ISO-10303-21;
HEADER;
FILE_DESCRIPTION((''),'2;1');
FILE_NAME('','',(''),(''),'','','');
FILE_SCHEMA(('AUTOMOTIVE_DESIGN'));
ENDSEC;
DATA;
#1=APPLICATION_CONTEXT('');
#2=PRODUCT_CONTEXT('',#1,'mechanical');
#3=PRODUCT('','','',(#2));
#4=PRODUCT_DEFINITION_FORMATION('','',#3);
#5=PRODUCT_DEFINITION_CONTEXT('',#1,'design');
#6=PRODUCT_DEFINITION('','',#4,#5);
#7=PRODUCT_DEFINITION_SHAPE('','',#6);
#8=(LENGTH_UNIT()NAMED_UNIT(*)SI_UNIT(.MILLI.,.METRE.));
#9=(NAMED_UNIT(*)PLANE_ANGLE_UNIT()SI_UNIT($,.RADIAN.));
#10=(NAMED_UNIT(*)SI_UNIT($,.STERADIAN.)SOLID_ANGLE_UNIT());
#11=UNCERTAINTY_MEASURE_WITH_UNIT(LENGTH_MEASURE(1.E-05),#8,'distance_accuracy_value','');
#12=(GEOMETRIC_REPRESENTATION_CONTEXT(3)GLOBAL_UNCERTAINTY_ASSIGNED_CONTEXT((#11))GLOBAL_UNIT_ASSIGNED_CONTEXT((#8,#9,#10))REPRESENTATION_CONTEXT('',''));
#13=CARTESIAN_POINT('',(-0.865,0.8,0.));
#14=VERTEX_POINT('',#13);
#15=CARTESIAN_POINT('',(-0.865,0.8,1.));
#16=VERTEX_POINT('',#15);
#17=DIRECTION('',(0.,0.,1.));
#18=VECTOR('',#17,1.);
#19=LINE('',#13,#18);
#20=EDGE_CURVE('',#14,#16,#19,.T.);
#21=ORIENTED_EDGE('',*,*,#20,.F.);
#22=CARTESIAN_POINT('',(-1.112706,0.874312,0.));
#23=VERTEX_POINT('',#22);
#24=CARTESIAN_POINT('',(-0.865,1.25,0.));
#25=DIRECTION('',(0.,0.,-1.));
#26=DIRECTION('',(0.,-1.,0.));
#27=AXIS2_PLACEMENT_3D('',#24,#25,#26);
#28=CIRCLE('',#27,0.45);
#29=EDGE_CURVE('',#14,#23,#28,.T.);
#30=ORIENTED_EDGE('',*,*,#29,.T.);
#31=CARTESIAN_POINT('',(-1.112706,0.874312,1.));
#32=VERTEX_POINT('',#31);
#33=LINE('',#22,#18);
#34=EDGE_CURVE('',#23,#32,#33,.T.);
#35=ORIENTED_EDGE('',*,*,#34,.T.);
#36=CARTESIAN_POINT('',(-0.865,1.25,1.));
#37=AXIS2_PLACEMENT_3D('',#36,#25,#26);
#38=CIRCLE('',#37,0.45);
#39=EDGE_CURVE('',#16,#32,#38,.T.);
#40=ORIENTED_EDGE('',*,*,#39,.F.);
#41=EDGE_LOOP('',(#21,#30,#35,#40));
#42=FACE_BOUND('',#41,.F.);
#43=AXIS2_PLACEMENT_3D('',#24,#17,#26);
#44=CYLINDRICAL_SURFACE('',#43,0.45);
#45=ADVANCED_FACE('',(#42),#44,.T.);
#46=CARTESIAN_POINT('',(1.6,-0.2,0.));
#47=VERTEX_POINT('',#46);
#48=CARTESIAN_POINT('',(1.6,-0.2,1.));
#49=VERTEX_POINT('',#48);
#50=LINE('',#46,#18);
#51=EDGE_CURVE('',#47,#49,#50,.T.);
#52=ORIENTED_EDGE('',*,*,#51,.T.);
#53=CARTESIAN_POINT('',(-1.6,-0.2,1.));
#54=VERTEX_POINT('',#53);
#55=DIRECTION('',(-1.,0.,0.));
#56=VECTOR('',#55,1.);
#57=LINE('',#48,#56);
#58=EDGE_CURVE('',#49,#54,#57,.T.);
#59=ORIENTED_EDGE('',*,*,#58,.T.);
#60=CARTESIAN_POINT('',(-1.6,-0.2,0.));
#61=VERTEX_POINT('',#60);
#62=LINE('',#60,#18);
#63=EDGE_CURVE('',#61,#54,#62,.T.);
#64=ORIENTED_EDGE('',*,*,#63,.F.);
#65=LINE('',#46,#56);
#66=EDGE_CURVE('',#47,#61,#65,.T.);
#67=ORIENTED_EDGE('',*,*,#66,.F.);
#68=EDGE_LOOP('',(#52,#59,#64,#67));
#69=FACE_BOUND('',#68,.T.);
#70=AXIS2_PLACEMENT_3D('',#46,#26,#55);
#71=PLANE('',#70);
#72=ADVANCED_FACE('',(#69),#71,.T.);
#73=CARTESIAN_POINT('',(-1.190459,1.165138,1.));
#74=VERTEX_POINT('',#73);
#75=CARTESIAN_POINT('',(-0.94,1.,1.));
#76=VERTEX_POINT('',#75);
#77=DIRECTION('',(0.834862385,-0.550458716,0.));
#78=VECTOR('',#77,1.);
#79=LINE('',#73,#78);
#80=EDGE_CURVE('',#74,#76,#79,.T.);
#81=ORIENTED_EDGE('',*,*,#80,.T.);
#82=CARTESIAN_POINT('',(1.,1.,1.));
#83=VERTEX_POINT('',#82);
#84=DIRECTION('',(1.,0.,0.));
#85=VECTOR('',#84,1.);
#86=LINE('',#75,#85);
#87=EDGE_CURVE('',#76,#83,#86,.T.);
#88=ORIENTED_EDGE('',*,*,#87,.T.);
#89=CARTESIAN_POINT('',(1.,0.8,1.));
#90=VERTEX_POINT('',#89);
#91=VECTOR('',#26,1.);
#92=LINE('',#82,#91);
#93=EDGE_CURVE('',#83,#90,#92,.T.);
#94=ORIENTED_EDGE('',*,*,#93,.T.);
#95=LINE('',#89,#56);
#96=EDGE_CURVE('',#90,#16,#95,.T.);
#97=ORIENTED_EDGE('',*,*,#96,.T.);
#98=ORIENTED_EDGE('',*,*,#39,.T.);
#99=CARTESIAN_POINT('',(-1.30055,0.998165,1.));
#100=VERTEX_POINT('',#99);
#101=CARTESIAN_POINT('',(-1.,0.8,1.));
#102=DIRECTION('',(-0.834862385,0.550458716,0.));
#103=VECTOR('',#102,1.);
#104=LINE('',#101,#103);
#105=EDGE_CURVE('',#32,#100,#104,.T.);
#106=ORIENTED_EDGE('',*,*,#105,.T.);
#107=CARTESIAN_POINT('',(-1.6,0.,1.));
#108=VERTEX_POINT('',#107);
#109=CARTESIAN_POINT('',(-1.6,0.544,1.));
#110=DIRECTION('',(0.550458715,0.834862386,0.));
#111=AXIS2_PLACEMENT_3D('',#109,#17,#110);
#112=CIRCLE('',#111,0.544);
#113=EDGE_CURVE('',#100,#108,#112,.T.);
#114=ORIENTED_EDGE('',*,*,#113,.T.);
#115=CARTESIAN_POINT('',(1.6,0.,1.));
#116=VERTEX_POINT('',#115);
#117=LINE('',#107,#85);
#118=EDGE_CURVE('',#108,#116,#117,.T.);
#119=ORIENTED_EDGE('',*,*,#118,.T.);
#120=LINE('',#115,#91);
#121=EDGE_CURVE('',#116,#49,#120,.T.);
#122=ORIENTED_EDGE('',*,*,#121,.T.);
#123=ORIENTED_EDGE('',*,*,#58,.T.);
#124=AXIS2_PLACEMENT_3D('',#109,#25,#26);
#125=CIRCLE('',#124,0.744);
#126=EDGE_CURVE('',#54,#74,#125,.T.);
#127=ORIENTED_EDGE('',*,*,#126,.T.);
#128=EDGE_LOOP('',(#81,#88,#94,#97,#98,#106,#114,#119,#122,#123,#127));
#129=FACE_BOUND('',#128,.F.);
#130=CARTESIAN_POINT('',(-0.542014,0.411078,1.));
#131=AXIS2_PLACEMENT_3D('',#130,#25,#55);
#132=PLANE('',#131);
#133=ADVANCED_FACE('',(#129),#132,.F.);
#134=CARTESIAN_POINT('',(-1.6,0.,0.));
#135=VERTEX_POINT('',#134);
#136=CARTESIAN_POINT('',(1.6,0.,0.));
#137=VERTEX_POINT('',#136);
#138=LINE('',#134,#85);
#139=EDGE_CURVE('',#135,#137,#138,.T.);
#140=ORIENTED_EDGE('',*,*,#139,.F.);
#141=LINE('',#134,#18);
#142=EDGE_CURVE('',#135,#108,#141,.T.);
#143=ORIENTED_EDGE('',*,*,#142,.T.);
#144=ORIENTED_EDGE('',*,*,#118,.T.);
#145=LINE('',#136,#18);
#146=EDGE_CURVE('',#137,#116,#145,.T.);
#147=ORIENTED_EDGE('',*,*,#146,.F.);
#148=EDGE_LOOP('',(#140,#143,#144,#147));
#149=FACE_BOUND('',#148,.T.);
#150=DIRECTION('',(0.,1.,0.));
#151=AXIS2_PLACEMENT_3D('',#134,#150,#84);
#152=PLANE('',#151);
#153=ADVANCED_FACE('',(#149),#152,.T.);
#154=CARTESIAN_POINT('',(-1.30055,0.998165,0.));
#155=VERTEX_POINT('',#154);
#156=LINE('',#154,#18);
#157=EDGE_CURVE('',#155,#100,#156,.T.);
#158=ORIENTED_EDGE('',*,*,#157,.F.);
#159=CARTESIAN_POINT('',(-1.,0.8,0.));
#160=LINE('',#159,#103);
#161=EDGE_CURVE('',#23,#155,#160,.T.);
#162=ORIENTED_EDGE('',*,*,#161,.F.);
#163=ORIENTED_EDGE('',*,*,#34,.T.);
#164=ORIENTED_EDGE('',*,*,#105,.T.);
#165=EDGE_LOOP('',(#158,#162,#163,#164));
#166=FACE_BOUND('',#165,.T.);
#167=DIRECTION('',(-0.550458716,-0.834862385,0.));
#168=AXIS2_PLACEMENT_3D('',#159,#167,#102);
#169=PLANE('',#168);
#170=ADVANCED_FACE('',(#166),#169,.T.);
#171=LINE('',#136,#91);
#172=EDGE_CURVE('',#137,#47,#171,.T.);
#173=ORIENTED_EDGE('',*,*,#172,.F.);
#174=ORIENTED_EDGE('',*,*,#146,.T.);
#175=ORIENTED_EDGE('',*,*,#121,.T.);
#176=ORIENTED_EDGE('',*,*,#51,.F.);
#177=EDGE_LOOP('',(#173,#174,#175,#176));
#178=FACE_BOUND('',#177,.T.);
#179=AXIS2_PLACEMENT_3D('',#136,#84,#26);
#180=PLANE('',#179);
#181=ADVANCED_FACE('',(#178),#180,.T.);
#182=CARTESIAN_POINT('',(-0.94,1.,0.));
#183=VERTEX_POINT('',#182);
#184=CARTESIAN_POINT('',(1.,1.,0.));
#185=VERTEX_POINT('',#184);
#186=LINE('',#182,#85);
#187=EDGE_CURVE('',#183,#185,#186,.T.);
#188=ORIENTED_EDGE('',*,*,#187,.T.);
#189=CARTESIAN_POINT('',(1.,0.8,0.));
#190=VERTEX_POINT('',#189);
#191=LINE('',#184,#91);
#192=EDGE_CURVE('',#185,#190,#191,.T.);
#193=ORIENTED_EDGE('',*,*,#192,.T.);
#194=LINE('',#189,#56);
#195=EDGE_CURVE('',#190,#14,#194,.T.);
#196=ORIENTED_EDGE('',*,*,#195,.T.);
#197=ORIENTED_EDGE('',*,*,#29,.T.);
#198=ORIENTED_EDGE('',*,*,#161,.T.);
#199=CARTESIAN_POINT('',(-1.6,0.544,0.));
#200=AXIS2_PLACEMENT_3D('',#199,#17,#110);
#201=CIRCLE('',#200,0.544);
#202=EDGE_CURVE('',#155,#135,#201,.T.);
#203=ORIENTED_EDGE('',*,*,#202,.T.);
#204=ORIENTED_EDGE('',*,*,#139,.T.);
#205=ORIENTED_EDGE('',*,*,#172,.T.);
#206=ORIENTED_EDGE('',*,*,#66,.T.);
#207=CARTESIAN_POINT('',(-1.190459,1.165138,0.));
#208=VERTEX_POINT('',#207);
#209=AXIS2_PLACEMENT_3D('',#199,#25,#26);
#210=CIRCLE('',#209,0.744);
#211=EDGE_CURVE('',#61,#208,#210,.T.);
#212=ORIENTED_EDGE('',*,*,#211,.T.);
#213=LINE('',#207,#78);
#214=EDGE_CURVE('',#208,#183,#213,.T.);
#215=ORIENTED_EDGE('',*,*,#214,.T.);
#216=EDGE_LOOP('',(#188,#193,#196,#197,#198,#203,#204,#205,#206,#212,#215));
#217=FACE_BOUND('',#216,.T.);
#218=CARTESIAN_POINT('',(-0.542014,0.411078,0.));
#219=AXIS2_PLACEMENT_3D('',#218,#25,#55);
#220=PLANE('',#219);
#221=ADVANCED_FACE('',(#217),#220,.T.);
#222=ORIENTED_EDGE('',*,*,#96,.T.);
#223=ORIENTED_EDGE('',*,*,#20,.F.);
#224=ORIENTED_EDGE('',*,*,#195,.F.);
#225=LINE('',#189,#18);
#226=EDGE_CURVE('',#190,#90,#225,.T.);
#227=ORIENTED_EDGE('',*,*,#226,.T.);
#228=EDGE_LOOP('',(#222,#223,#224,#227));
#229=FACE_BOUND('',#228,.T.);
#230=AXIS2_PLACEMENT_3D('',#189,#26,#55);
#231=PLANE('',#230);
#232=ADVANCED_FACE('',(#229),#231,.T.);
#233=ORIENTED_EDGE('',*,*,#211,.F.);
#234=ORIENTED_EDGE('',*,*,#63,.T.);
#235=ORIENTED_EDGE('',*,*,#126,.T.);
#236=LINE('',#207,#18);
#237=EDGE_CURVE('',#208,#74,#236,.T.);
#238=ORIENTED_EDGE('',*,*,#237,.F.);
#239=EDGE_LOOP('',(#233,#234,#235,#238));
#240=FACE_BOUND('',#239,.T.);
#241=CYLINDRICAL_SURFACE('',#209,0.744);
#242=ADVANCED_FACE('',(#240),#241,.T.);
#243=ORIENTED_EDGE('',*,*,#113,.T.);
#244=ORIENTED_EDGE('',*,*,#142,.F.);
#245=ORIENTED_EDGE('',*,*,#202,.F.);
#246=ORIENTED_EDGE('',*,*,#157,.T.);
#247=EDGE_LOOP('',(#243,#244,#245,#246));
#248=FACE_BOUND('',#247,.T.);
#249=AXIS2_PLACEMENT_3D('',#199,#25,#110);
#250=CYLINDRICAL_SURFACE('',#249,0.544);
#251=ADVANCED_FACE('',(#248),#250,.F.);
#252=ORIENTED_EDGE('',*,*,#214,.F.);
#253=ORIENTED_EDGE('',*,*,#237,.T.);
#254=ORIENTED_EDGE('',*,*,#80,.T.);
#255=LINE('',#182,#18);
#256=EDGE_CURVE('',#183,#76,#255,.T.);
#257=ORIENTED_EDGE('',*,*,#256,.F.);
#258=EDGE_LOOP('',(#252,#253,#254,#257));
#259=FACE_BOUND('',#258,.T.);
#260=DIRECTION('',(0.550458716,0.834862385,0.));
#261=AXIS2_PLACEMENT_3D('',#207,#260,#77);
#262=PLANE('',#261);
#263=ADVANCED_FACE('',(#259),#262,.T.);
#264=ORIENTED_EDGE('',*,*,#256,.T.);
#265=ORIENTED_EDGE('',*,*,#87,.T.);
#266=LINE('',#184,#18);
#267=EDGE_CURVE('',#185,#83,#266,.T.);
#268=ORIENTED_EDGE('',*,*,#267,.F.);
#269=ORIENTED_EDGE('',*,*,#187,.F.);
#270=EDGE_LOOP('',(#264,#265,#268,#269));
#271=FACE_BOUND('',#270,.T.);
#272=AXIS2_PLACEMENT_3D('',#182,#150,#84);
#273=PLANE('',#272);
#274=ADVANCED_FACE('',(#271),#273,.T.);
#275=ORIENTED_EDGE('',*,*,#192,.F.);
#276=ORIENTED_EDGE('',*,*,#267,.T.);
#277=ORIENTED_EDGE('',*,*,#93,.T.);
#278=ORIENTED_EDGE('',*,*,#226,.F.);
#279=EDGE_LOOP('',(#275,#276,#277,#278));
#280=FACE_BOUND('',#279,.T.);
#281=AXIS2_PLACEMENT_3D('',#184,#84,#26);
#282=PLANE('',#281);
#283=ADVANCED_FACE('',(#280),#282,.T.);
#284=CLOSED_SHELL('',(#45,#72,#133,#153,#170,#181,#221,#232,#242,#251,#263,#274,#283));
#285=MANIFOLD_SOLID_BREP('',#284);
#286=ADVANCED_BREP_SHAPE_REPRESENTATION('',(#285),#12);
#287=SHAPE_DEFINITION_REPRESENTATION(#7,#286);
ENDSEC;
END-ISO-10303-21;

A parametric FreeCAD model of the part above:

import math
import FreeCAD as App
import Part
import Sketcher
from FreeCAD import Vector


def edges_at(feature, points):
    """Names of the edges that pass closest to the given points."""
    edges = feature.Shape.Edges
    near = lambda p: min(range(len(edges)), key=lambda i: edges[i].distToShape(Part.Vertex(*p))[0])
    return sorted({f"Edge{near(p) + 1}" for p in points})

doc = App.newDocument("Part")
params = doc.addObject("Spreadsheet::Sheet", "Params")
for row, (alias, value) in enumerate([
    ("sketch1_width", "2 mm"),
    ("sketch1_width2", "3.2 mm"),
    ("sketch1_height", "0.2 mm"),
    ("pad1_length", "1 mm"),
    ("fillet_radius", "0.45 mm"),
], start=1):
    params.set(f"A{row}", alias)
    params.set(f"B{row}", "=" + value)
    params.setAlias(f"B{row}", alias)

body = doc.addObject("PartDesign::Body", "Body")

# Sketch on XY plane
sketch1 = body.newObject("Sketcher::SketchObject", "Sketch")
sketch1.AttachmentSupport = (doc.getObject("XY_Plane"), [""])
sketch1.MapMode = "FlatFace"
sketch1.addGeometry([
    Part.LineSegment(Vector(1.6, 0, 0), Vector(-1.6, 0, 0)),  # 0
    Part.ArcOfCircle(Part.Circle(Vector(-1.6, 0.54, 0), Vector(0, 0, 1), 0.54), math.radians(57), math.radians(270)),  # 1
    Part.LineSegment(Vector(-1.3, 1, 0), Vector(-1, 0.8, 0)),  # 2
    Part.LineSegment(Vector(-1, 0.8, 0), Vector(1, 0.8, 0)),  # 3
    Part.LineSegment(Vector(1, 0.8, 0), Vector(1, 1, 0)),  # 4
    Part.LineSegment(Vector(1, 1, 0), Vector(-0.94, 1, 0)),  # 5
    Part.LineSegment(Vector(-0.94, 1, 0), Vector(-1.19, 1.17, 0)),  # 6
    Part.ArcOfCircle(Part.Circle(Vector(-1.6, 0.54, 0), Vector(0, 0, 1), 0.74), math.radians(57), math.radians(270)),  # 7
    Part.LineSegment(Vector(-1.6, -0.2, 0), Vector(1.6, -0.2, 0)),  # 8
    Part.LineSegment(Vector(1.6, -0.2, 0), Vector(1.6, 0, 0)),  # 9
], False)
sketch1.addConstraint([
    Sketcher.Constraint("Tangent", 0, 2, 1, 2),
    Sketcher.Constraint("Tangent", 1, 1, 2, 1),
    Sketcher.Constraint("Coincident", 2, 2, 3, 1),
    Sketcher.Constraint("Coincident", 3, 2, 4, 1),
    Sketcher.Constraint("Coincident", 4, 2, 5, 1),
    Sketcher.Constraint("Coincident", 5, 2, 6, 1),
    Sketcher.Constraint("Tangent", 6, 2, 7, 1),
    Sketcher.Constraint("Tangent", 7, 2, 8, 1),
    Sketcher.Constraint("Coincident", 8, 2, 9, 1),
    Sketcher.Constraint("Coincident", 9, 2, 0, 1),
    Sketcher.Constraint("Horizontal", 0),
    Sketcher.Constraint("Horizontal", 3),
    Sketcher.Constraint("Vertical", 4),
    Sketcher.Constraint("Horizontal", 5),
    Sketcher.Constraint("Horizontal", 8),
    Sketcher.Constraint("Vertical", 9),
    Sketcher.Constraint("Coincident", 7, 3, 1, 3),
    Sketcher.Constraint("Symmetric", 0, 2, 9, 2, -1, 1),
    Sketcher.Constraint("Parallel", 2, 6),
    Sketcher.Constraint("Equal", 4, 9),
    Sketcher.Constraint("DistanceX", 3, 1, 3, 2, 2.0),
    Sketcher.Constraint("DistanceX", 0, 2, 0, 1, 3.2),
    Sketcher.Constraint("DistanceY", 4, 1, 4, 2, 0.2),
    Sketcher.Constraint("DistanceX", 2, 2, -1, 1, 1.0),
    Sketcher.Constraint("DistanceY", -1, 1, 4, 2, 1.0),
    Sketcher.Constraint("Radius", 1, 0.544),
])
sketch1.setExpression("Constraints[20]", "Params.sketch1_width")
sketch1.setExpression("Constraints[21]", "Params.sketch1_width2")
sketch1.setExpression("Constraints[22]", "Params.sketch1_height")
pad1 = body.newObject("PartDesign::Pad", "Pad")
pad1.Profile = sketch1
pad1.setExpression("Length", "Params.pad1_length")
doc.recompute()

fillet = body.newObject("PartDesign::Fillet", "Fillet")
fillet.Base = (pad1, edges_at(pad1, [(-1, 0.8, 0.5)]))
fillet.setExpression("Radius", "Params.fillet_radius")

doc.recompute()
